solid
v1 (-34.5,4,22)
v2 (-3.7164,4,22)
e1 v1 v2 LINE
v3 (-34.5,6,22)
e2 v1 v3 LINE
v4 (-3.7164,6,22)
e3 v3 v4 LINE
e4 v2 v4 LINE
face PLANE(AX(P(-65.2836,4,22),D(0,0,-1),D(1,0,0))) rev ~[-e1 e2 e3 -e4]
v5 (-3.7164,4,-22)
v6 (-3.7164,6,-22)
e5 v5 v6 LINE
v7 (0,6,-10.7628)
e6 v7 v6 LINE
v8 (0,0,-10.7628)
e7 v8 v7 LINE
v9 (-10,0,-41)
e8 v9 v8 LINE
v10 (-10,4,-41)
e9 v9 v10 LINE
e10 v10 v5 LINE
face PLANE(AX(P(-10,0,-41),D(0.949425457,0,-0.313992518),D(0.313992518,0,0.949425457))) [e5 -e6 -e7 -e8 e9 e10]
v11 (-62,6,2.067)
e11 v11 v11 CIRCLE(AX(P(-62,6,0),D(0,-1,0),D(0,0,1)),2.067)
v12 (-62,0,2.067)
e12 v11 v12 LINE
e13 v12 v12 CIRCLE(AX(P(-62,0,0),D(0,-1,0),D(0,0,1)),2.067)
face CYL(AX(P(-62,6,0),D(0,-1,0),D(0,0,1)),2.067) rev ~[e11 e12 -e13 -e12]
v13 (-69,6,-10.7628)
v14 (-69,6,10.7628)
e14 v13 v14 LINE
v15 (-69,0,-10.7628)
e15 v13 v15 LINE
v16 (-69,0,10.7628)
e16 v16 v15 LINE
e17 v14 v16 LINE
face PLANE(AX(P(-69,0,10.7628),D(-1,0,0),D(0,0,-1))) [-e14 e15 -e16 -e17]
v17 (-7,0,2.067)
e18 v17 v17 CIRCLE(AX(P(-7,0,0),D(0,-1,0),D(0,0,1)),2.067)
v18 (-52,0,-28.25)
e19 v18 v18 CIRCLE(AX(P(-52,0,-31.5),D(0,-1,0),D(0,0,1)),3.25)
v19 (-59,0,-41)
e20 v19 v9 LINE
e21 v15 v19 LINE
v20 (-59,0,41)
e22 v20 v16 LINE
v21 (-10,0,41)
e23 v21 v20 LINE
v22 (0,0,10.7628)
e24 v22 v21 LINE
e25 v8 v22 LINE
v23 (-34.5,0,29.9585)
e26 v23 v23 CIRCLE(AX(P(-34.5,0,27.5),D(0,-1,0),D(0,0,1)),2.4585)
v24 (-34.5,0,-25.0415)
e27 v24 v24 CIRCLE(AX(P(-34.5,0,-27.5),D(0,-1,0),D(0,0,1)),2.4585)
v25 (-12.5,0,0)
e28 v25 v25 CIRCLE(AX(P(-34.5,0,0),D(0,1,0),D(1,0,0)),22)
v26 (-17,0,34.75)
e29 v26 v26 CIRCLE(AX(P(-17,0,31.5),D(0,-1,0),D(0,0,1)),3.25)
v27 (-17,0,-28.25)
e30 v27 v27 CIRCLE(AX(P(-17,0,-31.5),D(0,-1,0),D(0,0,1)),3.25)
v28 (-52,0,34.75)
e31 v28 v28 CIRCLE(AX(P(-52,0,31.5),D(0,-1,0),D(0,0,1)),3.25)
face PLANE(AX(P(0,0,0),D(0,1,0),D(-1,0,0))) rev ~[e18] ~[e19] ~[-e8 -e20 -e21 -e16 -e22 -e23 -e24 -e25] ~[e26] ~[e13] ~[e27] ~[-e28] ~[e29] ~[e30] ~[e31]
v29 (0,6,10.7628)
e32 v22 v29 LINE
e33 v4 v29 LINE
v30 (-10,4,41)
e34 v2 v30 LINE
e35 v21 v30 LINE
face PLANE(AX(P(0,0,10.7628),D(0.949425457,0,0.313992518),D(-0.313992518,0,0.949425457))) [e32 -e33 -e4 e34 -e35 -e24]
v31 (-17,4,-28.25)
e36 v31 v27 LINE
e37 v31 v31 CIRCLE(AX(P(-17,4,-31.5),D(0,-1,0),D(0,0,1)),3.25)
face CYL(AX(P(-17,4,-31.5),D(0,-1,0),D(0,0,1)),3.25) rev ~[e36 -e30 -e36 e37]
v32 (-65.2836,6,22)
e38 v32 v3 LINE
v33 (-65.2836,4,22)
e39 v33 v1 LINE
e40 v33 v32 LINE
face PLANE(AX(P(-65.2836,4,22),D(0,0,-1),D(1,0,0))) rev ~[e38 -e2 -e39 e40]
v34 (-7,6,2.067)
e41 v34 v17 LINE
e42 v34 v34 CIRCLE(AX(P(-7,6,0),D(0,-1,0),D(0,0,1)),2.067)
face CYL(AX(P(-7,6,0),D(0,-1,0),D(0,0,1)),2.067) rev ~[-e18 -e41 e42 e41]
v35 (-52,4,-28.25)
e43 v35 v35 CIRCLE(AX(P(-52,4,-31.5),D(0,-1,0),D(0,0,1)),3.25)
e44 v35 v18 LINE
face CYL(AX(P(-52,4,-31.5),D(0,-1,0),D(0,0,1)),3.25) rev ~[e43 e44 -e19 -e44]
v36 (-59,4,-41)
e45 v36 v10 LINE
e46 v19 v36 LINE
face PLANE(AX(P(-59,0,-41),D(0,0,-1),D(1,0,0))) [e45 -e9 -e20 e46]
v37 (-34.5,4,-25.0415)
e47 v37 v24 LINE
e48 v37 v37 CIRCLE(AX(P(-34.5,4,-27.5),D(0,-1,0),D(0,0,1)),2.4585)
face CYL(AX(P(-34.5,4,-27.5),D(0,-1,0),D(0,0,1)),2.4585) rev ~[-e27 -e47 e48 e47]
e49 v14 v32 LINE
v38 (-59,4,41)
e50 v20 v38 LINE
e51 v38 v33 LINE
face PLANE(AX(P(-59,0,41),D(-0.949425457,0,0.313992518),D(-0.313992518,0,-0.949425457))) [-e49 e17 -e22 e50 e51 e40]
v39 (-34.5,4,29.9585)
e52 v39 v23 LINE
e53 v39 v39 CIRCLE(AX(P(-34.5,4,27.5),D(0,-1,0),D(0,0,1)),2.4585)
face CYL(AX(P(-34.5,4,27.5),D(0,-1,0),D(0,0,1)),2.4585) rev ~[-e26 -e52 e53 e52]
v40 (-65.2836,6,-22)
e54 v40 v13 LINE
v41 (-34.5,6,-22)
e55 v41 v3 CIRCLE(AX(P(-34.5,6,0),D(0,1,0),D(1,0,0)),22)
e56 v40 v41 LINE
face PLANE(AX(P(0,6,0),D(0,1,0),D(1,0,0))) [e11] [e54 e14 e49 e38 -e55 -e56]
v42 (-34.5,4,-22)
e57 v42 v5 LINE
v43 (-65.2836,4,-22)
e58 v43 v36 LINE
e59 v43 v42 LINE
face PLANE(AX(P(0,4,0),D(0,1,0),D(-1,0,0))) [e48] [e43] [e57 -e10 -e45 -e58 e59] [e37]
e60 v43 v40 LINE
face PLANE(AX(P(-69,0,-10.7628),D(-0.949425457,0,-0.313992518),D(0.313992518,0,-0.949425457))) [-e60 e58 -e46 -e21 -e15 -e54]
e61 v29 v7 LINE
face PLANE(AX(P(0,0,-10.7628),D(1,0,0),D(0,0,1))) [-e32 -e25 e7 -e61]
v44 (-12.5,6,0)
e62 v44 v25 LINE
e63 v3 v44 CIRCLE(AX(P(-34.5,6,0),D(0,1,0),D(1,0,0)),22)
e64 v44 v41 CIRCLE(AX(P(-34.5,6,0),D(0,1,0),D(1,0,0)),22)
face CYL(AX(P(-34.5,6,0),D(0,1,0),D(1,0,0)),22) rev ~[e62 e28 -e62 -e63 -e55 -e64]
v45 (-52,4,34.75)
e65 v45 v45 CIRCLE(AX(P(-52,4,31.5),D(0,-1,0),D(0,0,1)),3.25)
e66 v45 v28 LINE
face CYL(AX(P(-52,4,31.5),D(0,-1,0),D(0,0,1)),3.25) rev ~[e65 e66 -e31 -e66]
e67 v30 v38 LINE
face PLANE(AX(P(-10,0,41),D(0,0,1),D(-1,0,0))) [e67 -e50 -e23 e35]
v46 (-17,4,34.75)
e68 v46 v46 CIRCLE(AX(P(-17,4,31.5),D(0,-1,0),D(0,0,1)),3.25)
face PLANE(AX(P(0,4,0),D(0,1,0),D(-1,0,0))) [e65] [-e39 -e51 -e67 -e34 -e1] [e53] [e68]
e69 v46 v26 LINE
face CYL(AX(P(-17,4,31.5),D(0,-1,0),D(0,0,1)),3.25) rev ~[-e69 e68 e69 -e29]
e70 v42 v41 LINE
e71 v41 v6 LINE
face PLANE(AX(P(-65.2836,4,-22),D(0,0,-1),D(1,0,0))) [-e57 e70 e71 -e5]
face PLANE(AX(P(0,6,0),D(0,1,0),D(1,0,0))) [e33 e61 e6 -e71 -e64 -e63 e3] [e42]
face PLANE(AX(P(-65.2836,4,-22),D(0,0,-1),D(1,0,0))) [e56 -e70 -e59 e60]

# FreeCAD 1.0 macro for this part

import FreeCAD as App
import Part
import Sketcher
Q = App.Units.Quantity

doc = App.newDocument("Part")
params = doc.addObject("Spreadsheet::Sheet", "Params")
for row, (alias, value) in enumerate([
    ("sketch1_width", "49 mm"),
    ("pad1_length", "4 mm"),
    ("pad2_length", "2 mm"),
    ("sketch3_diameter", "44 mm"),
    ("pocket1_length", "6 mm"),
    ("hole_diameter", "4.917 mm"),
    ("sketch5_diameter", "6.5 mm"),
    ("hole2_diameter", "6.5 mm"),
    ("hole3_diameter", "4.134 mm"),
], start=1):
    params.set(f"A{row}", alias)
    params.set(f"B{row}", "=" + value)
    params.setAlias(f"B{row}", alias)

body = doc.addObject("PartDesign::Body", "Body")

# Sketch on XZ plane
sketch1 = body.newObject("Sketcher::SketchObject", "Sketch")
sketch1.AttachmentSupport = (doc.getObject("XZ_Plane"), [""])
sketch1.MapMode = "FlatFace"
sketch1.addGeometry([
    Part.LineSegment(App.Vector(-10, 41, 0), App.Vector(0, 11, 0)),  # 0
    Part.LineSegment(App.Vector(0, 11, 0), App.Vector(0, -11, 0)),  # 1
    Part.LineSegment(App.Vector(0, -11, 0), App.Vector(-10, -41, 0)),  # 2
    Part.LineSegment(App.Vector(-10, -41, 0), App.Vector(-59, -41, 0)),  # 3
    Part.LineSegment(App.Vector(-59, -41, 0), App.Vector(-69, -11, 0)),  # 4
    Part.LineSegment(App.Vector(-69, -11, 0), App.Vector(-69, 11, 0)),  # 5
    Part.LineSegment(App.Vector(-69, 11, 0), App.Vector(-59, 41, 0)),  # 6
    Part.LineSegment(App.Vector(-59, 41, 0), App.Vector(-10, 41, 0)),  # 7
], False)
sketch1.addConstraint([
    Sketcher.Constraint("Coincident", 0, 2, 1, 1),
    Sketcher.Constraint("Coincident", 1, 2, 2, 1),
    Sketcher.Constraint("Coincident", 2, 2, 3, 1),
    Sketcher.Constraint("Coincident", 3, 2, 4, 1),
    Sketcher.Constraint("Coincident", 4, 2, 5, 1),
    Sketcher.Constraint("Coincident", 5, 2, 6, 1),
    Sketcher.Constraint("Coincident", 6, 2, 7, 1),
    Sketcher.Constraint("Coincident", 7, 2, 0, 1),
    Sketcher.Constraint("Vertical", 1),
    Sketcher.Constraint("Horizontal", 3),
    Sketcher.Constraint("Vertical", 5),
    Sketcher.Constraint("Horizontal", 7),
    Sketcher.Constraint("Symmetric", 0, 2, 1, 2, -1, 1),
    Sketcher.Constraint("Symmetric", 3, 2, 6, 2, -1),
    Sketcher.Constraint("Parallel", 0, 4),
    Sketcher.Constraint("Parallel", 2, 6),
    Sketcher.Constraint("Horizontal", 1, 2, 4, 2),
    Sketcher.Constraint("Horizontal", 0, 2, 5, 2),
    Sketcher.Constraint("DistanceX", 3, 2, 3, 1, Q("49 mm")),
    Sketcher.Constraint("DistanceX", 4, 2, -1, 1, Q("69 mm")),
    Sketcher.Constraint("DistanceY", 3, 2, 6, 2, Q("82 mm")),
    Sketcher.Constraint("Angle", 0, Q("-71.7 deg")),
])
sketch1.setExpression("Constraints[18]", "Params.sketch1_width")
pad1 = body.newObject("PartDesign::Pad", "Pad")
pad1.Profile = sketch1
pad1.setExpression("Length", "Params.pad1_length")
pad1.Reversed = True

# Sketch on XZ plane
sketch2 = body.newObject("Sketcher::SketchObject", "Sketch001")
sketch2.AttachmentSupport = (doc.getObject("XZ_Plane"), [""])
sketch2.MapMode = "FlatFace"
sketch2.AttachmentOffset = App.Placement(App.Vector(0, 0, -4), App.Rotation())
sketch2.addGeometry([
    Part.LineSegment(App.Vector(-69, -11, 0), App.Vector(-69, 11, 0)),  # 0
    Part.LineSegment(App.Vector(-69, 11, 0), App.Vector(-65, 22, 0)),  # 1
    Part.LineSegment(App.Vector(-65, 22, 0), App.Vector(-4, 22, 0)),  # 2
    Part.LineSegment(App.Vector(-4, 22, 0), App.Vector(0, 11, 0)),  # 3
    Part.LineSegment(App.Vector(0, 11, 0), App.Vector(0, -11, 0)),  # 4
    Part.LineSegment(App.Vector(0, -11, 0), App.Vector(-4, -22, 0)),  # 5
    Part.LineSegment(App.Vector(-4, -22, 0), App.Vector(-65, -22, 0)),  # 6
    Part.LineSegment(App.Vector(-65, -22, 0), App.Vector(-69, -11, 0)),  # 7
], False)
sketch2.addConstraint([
    Sketcher.Constraint("Coincident", 0, 2, 1, 1),
    Sketcher.Constraint("Coincident", 1, 2, 2, 1),
    Sketcher.Constraint("Coincident", 2, 2, 3, 1),
    Sketcher.Constraint("Coincident", 3, 2, 4, 1),
    Sketcher.Constraint("Coincident", 4, 2, 5, 1),
    Sketcher.Constraint("Coincident", 5, 2, 6, 1),
    Sketcher.Constraint("Coincident", 6, 2, 7, 1),
    Sketcher.Constraint("Coincident", 7, 2, 0, 1),
    Sketcher.Constraint("Vertical", 0),
    Sketcher.Constraint("Horizontal", 2),
    Sketcher.Constraint("Vertical", 4),
    Sketcher.Constraint("Horizontal", 6),
    Sketcher.Constraint("Symmetric", 3, 2, 4, 2, -1, 1),
    Sketcher.Constraint("Symmetric", 2, 2, 5, 2, -1),
    Sketcher.Constraint("Parallel", 1, 5),
    Sketcher.Constraint("Parallel", 3, 7),
    Sketcher.Constraint("Horizontal", 0, 2, 3, 2),
    Sketcher.Constraint("Horizontal", 4, 2, 7, 2),
    Sketcher.Constraint("DistanceY", 5, 2, 2, 2, Q("44 mm")),
    Sketcher.Constraint("DistanceX", 0, 2, -1, 1, Q("69 mm")),
    Sketcher.Constraint("Angle", 1, Q("71.7 deg")),
    Sketcher.Constraint("DistanceX", 2, 1, 2, 2, Q("61.5672 mm")),
])
pad2 = body.newObject("PartDesign::Pad", "Pad001")
pad2.Profile = sketch2
pad2.setExpression("Length", "Params.pad2_length")
pad2.Reversed = True

# Sketch on XZ plane
sketch3 = body.newObject("Sketcher::SketchObject", "Sketch002")
sketch3.AttachmentSupport = (doc.getObject("XZ_Plane"), [""])
sketch3.MapMode = "FlatFace"
sketch3.AttachmentOffset = App.Placement(App.Vector(0, 0, -6), App.Rotation())
sketch3.addGeometry(Part.Circle(App.Vector(-34, 0, 0), App.Vector(0, 0, 1), 22), False)
sketch3.addConstraint([
    Sketcher.Constraint("PointOnObject", 0, 3, -1),
    Sketcher.Constraint("Diameter", 0, Q("44 mm")),
    Sketcher.Constraint("DistanceX", 0, 3, -1, 1, Q("34.5 mm")),
])
sketch3.setExpression("Constraints[1]", "Params.sketch3_diameter")
pocket1 = body.newObject("PartDesign::Pocket", "Pocket")
pocket1.Profile = sketch3
pocket1.setExpression("Length", "Params.pocket1_length")
pocket1.Reversed = True

# Sketch on XZ plane
sketch4 = body.newObject("Sketcher::SketchObject", "Sketch003")
sketch4.AttachmentSupport = (doc.getObject("XZ_Plane"), [""])
sketch4.MapMode = "FlatFace"
sketch4.AttachmentOffset = App.Placement(App.Vector(0, 0, -4), App.Rotation())
sketch4.addGeometry([
    Part.Circle(App.Vector(-34.5, -27.5, 0), App.Vector(0, 0, 1), 2.5),
    Part.Circle(App.Vector(-34.5, 27.5, 0), App.Vector(0, 0, 1), 2.5),
], False)
sketch4.addConstraint([
    Sketcher.Constraint("Equal", 0, 1),
    Sketcher.Constraint("Symmetric", 0, 3, 1, 3, -1),
    Sketcher.Constraint("Diameter", 0, Q("4.917 mm")),
    Sketcher.Constraint("DistanceY", 0, 3, 1, 3, Q("55 mm")),
    Sketcher.Constraint("DistanceX", 0, 3, -1, 1, Q("34.5 mm")),
])
doc.recompute()
hole = body.newObject("PartDesign::Hole", "Hole")
hole.Profile = sketch4
hole.ThreadType = "None"
hole.setExpression("Diameter", "Params.hole_diameter")
hole.DepthType = "ThroughAll"
hole.Reversed = True

# Sketch on XZ plane
sketch5 = body.newObject("Sketcher::SketchObject", "Sketch004")
sketch5.AttachmentSupport = (doc.getObject("XZ_Plane"), [""])
sketch5.MapMode = "FlatFace"
sketch5.AttachmentOffset = App.Placement(App.Vector(0, 0, -4), App.Rotation())
sketch5.addGeometry([
    Part.Circle(App.Vector(-17, -31.5, 0), App.Vector(0, 0, 1), 3.2),
    Part.Circle(App.Vector(-52, -31.5, 0), App.Vector(0, 0, 1), 3.2),
    Part.Circle(App.Vector(-17, 31.5, 0), App.Vector(0, 0, 1), 3.2),
    Part.Circle(App.Vector(-52, 31.5, 0), App.Vector(0, 0, 1), 3.2),
], False)
sketch5.addConstraint([
    Sketcher.Constraint("Equal", 0, 1),
    Sketcher.Constraint("Equal", 1, 2),
    Sketcher.Constraint("Equal", 2, 3),
    Sketcher.Constraint("Symmetric", 0, 3, 2, 3, -1),
    Sketcher.Constraint("Symmetric", 1, 3, 3, 3, -1),
    Sketcher.Constraint("Horizontal", 0, 3, 1, 3),
    Sketcher.Constraint("Diameter", 0, Q("6.5 mm")),
    Sketcher.Constraint("DistanceX", 0, 3, -1, 1, Q("17 mm")),
    Sketcher.Constraint("DistanceX", 1, 3, -1, 1, Q("52 mm")),
    Sketcher.Constraint("DistanceY", 0, 3, 2, 3, Q("63 mm")),
])
sketch5.setExpression("Constraints[6]", "Params.sketch5_diameter")
doc.recompute()
hole2 = body.newObject("PartDesign::Hole", "Hole001")
hole2.Profile = sketch5
hole2.ThreadType = "None"
hole2.setExpression("Diameter", "Params.hole2_diameter")
hole2.DepthType = "ThroughAll"
hole2.Reversed = True

# Sketch on XZ plane
sketch6 = body.newObject("Sketcher::SketchObject", "Sketch005")
sketch6.AttachmentSupport = (doc.getObject("XZ_Plane"), [""])
sketch6.MapMode = "FlatFace"
sketch6.AttachmentOffset = App.Placement(App.Vector(0, 0, -6), App.Rotation())
sketch6.addGeometry([
    Part.Circle(App.Vector(-7, 0, 0), App.Vector(0, 0, 1), 2.1),
    Part.Circle(App.Vector(-62, 0, 0), App.Vector(0, 0, 1), 2.1),
], False)
sketch6.addConstraint([
    Sketcher.Constraint("Equal", 0, 1),
    Sketcher.Constraint("PointOnObject", 0, 3, -1),
    Sketcher.Constraint("PointOnObject", 1, 3, -1),
    Sketcher.Constraint("Diameter", 0, Q("4.134 mm")),
    Sketcher.Constraint("DistanceX", 0, 3, -1, 1, Q("7 mm")),
    Sketcher.Constraint("DistanceX", 1, 3, -1, 1, Q("62 mm")),
])
doc.recompute()
hole3 = body.newObject("PartDesign::Hole", "Hole002")
hole3.Profile = sketch6
hole3.ThreadType = "None"
hole3.setExpression("Diameter", "Params.hole3_diameter")
hole3.DepthType = "ThroughAll"
hole3.Reversed = True

doc.recompute()
